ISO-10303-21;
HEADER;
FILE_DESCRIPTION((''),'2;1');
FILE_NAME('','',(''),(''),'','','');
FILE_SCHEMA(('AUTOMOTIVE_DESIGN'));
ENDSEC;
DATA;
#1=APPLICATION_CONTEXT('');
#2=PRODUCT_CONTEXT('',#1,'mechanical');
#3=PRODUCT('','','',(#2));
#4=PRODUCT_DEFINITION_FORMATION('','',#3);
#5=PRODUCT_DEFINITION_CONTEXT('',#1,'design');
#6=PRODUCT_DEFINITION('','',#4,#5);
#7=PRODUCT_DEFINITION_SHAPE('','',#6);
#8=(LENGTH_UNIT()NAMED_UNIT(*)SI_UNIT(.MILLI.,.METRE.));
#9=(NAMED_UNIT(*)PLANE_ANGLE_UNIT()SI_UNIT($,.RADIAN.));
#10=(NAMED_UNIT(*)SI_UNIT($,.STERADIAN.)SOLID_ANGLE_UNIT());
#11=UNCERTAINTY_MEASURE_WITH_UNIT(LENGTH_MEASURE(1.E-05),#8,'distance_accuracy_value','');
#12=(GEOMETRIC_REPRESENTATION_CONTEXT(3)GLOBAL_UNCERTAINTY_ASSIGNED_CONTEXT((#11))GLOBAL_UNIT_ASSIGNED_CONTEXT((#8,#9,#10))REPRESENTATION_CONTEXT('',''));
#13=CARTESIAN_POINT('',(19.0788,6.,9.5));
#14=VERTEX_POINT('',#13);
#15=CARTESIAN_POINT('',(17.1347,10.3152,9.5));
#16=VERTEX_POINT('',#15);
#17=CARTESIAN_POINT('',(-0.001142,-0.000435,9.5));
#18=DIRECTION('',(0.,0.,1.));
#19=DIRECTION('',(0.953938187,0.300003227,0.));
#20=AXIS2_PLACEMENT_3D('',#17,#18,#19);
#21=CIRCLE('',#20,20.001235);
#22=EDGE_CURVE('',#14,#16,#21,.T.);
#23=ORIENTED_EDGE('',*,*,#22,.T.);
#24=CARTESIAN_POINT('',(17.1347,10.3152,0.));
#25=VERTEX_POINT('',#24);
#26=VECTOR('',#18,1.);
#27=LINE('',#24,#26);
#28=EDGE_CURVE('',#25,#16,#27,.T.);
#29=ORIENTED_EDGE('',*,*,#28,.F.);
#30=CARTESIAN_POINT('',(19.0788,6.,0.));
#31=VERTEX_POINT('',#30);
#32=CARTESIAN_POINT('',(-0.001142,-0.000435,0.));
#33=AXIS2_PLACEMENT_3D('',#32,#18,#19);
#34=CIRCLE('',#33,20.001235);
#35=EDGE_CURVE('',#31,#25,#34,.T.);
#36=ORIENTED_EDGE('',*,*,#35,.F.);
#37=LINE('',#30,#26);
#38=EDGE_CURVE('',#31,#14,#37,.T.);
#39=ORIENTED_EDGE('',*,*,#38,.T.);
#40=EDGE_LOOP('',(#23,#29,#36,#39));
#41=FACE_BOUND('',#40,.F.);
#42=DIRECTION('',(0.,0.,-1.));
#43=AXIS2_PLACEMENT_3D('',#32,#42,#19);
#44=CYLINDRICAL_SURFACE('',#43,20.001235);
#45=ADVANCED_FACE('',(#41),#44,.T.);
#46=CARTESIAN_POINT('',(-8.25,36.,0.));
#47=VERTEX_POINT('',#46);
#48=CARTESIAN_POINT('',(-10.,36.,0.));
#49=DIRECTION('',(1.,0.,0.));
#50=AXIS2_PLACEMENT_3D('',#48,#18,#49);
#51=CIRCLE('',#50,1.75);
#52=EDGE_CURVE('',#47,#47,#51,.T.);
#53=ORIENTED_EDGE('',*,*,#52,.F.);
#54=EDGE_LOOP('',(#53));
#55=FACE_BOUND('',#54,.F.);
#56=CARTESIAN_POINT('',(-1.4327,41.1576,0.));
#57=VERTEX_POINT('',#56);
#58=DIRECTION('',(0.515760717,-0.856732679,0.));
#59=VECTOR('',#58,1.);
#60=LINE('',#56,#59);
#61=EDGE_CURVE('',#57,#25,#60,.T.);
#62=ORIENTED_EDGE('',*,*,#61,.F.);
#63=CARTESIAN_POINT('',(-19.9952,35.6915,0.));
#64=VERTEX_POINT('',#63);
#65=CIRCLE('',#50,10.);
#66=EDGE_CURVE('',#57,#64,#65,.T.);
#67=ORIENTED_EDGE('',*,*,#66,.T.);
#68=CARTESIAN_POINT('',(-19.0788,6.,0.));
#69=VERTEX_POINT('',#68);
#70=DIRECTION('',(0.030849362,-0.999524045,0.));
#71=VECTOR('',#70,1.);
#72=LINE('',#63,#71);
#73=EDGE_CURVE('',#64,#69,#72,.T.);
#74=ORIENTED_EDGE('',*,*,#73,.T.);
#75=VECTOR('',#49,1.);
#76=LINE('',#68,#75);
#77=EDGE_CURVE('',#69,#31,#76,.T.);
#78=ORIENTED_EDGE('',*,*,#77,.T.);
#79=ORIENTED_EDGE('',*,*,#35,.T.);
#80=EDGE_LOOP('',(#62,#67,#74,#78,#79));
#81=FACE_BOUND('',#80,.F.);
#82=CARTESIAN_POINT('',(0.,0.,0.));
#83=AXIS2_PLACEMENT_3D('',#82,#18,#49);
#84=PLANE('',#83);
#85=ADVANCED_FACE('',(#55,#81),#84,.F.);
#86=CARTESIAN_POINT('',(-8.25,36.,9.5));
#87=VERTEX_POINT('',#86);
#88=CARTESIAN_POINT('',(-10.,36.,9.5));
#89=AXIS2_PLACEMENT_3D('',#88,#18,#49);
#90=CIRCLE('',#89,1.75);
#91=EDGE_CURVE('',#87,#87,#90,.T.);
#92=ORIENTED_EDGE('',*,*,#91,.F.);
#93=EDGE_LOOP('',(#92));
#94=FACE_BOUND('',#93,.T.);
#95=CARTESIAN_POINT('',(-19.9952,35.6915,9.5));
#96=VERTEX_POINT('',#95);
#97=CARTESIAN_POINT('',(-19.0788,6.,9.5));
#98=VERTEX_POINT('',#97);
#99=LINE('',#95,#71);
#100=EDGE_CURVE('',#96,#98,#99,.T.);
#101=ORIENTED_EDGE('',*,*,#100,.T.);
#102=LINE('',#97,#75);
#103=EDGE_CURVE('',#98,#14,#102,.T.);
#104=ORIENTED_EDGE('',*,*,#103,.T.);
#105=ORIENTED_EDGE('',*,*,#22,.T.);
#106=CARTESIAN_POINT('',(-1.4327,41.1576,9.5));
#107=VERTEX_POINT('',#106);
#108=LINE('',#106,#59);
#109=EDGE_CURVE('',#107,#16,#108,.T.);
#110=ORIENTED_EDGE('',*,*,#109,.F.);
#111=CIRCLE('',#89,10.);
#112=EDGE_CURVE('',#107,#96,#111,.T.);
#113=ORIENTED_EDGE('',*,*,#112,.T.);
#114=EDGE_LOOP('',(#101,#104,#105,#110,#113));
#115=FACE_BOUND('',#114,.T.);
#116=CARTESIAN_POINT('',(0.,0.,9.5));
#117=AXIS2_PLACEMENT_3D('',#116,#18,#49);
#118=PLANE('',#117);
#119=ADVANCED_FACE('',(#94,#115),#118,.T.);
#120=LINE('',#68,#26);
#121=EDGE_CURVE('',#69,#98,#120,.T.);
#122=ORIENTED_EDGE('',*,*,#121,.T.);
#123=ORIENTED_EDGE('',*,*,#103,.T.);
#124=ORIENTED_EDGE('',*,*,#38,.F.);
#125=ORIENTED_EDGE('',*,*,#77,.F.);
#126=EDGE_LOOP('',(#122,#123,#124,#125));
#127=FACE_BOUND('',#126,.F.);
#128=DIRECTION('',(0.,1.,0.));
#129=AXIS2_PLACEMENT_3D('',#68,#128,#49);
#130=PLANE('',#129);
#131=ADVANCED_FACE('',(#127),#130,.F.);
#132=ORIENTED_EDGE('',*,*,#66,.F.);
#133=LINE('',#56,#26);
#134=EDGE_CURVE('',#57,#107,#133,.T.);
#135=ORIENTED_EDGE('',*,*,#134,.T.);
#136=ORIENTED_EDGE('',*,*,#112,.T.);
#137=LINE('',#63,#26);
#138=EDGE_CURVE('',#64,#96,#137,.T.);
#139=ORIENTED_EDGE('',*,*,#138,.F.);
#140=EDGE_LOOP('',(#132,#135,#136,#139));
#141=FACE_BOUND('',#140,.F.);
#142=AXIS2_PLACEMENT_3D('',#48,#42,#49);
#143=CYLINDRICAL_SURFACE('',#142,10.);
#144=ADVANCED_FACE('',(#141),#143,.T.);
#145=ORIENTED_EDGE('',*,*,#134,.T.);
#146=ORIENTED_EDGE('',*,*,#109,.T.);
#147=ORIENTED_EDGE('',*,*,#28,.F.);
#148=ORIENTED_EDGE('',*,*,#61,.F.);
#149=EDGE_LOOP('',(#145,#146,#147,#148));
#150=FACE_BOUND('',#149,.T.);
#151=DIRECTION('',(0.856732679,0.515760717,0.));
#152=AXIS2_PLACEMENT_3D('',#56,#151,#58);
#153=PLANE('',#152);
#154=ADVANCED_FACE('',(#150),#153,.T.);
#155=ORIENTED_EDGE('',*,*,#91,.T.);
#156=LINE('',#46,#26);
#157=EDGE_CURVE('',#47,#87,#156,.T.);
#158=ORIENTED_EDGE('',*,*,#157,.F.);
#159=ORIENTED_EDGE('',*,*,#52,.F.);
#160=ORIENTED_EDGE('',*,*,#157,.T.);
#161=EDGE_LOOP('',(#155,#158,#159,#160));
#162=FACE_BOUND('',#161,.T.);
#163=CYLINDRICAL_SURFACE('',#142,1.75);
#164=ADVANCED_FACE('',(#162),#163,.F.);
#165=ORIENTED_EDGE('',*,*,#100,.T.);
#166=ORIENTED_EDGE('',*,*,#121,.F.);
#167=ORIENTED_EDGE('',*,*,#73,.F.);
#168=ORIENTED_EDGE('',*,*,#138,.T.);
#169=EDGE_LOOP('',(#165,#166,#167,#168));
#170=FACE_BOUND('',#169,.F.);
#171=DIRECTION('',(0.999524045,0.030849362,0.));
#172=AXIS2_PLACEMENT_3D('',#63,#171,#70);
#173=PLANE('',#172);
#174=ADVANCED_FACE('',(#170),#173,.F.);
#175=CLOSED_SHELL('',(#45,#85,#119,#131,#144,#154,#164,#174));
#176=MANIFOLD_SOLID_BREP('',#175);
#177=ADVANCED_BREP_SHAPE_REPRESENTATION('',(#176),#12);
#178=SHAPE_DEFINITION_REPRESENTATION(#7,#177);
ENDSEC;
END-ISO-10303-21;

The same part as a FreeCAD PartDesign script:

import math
import FreeCAD as App
import Part
import Sketcher
Q = App.Units.Quantity

doc = App.newDocument("Part")
body = doc.addObject("PartDesign::Body", "Body")

sketch1 = body.newObject("Sketcher::SketchObject", "Sketch")
sketch1.AttachmentSupport = (doc.getObject("XY_Plane"), [""])
sketch1.MapMode = "FlatFace"
sketch1.addGeometry([
    Part.LineSegment(App.Vector(-19.0788, 6, 0), App.Vector(19.0788, 6, 0)),
    Part.ArcOfCircle(Part.Circle(App.Vector(-0.001142, -0.000435, 0), App.Vector(0, 0, 1), 20.001235), math.radians(17.457797), math.radians(31.047592)),
    Part.LineSegment(App.Vector(17.1347, 10.3152, 0), App.Vector(-1.4327, 41.1576, 0)),
    Part.ArcOfCircle(Part.Circle(App.Vector(-10, 36, 0), App.Vector(0, 0, 1), 10), math.radians(31.04836), math.radians(181.767862)),
    Part.LineSegment(App.Vector(-19.9952, 35.6915, 0), App.Vector(-19.0788, 6, 0)),
    Part.Circle(App.Vector(-10, 36, 0), App.Vector(0, 0, 1), 1.75),
], False)
sketch1.addConstraint([
    Sketcher.Constraint("Coincident", 0, 2, 1, 1),
    Sketcher.Constraint("Tangent", 1, 2, 2, 1),
    Sketcher.Constraint("Tangent", 2, 2, 3, 1),
    Sketcher.Constraint("Tangent", 3, 2, 4, 1),
    Sketcher.Constraint("Coincident", 4, 2, 0, 1),
    Sketcher.Constraint("Horizontal", 0),
    Sketcher.Constraint("Coincident", 5, 3, 3, 3),
    Sketcher.Constraint("Radius", 3, Q("10 mm")),
    Sketcher.Constraint("Diameter", 5, Q("3.5 mm")),
    Sketcher.Constraint("DistanceX", 3, 3, -1, 1, Q("10 mm")),
    Sketcher.Constraint("DistanceY", -1, 1, 0, 2, Q("6 mm")),
    Sketcher.Constraint("DistanceY", 0, 2, 3, 3, Q("30 mm")),
    Sketcher.Constraint("Distance", 2, Q("36 mm")),
    Sketcher.Constraint("Radius", 1, Q("20.0012 mm")),
    Sketcher.Constraint("DistanceY", 1, 3, 0, 2, Q("6.0004 mm")),
    Sketcher.Constraint("DistanceX", 0, 1, 0, 2, Q("38.1576 mm")),
])
pad1 = body.newObject("PartDesign::Pad", "Pad")
pad1.Profile = sketch1
pad1.Length = 9.5

doc.recompute()
